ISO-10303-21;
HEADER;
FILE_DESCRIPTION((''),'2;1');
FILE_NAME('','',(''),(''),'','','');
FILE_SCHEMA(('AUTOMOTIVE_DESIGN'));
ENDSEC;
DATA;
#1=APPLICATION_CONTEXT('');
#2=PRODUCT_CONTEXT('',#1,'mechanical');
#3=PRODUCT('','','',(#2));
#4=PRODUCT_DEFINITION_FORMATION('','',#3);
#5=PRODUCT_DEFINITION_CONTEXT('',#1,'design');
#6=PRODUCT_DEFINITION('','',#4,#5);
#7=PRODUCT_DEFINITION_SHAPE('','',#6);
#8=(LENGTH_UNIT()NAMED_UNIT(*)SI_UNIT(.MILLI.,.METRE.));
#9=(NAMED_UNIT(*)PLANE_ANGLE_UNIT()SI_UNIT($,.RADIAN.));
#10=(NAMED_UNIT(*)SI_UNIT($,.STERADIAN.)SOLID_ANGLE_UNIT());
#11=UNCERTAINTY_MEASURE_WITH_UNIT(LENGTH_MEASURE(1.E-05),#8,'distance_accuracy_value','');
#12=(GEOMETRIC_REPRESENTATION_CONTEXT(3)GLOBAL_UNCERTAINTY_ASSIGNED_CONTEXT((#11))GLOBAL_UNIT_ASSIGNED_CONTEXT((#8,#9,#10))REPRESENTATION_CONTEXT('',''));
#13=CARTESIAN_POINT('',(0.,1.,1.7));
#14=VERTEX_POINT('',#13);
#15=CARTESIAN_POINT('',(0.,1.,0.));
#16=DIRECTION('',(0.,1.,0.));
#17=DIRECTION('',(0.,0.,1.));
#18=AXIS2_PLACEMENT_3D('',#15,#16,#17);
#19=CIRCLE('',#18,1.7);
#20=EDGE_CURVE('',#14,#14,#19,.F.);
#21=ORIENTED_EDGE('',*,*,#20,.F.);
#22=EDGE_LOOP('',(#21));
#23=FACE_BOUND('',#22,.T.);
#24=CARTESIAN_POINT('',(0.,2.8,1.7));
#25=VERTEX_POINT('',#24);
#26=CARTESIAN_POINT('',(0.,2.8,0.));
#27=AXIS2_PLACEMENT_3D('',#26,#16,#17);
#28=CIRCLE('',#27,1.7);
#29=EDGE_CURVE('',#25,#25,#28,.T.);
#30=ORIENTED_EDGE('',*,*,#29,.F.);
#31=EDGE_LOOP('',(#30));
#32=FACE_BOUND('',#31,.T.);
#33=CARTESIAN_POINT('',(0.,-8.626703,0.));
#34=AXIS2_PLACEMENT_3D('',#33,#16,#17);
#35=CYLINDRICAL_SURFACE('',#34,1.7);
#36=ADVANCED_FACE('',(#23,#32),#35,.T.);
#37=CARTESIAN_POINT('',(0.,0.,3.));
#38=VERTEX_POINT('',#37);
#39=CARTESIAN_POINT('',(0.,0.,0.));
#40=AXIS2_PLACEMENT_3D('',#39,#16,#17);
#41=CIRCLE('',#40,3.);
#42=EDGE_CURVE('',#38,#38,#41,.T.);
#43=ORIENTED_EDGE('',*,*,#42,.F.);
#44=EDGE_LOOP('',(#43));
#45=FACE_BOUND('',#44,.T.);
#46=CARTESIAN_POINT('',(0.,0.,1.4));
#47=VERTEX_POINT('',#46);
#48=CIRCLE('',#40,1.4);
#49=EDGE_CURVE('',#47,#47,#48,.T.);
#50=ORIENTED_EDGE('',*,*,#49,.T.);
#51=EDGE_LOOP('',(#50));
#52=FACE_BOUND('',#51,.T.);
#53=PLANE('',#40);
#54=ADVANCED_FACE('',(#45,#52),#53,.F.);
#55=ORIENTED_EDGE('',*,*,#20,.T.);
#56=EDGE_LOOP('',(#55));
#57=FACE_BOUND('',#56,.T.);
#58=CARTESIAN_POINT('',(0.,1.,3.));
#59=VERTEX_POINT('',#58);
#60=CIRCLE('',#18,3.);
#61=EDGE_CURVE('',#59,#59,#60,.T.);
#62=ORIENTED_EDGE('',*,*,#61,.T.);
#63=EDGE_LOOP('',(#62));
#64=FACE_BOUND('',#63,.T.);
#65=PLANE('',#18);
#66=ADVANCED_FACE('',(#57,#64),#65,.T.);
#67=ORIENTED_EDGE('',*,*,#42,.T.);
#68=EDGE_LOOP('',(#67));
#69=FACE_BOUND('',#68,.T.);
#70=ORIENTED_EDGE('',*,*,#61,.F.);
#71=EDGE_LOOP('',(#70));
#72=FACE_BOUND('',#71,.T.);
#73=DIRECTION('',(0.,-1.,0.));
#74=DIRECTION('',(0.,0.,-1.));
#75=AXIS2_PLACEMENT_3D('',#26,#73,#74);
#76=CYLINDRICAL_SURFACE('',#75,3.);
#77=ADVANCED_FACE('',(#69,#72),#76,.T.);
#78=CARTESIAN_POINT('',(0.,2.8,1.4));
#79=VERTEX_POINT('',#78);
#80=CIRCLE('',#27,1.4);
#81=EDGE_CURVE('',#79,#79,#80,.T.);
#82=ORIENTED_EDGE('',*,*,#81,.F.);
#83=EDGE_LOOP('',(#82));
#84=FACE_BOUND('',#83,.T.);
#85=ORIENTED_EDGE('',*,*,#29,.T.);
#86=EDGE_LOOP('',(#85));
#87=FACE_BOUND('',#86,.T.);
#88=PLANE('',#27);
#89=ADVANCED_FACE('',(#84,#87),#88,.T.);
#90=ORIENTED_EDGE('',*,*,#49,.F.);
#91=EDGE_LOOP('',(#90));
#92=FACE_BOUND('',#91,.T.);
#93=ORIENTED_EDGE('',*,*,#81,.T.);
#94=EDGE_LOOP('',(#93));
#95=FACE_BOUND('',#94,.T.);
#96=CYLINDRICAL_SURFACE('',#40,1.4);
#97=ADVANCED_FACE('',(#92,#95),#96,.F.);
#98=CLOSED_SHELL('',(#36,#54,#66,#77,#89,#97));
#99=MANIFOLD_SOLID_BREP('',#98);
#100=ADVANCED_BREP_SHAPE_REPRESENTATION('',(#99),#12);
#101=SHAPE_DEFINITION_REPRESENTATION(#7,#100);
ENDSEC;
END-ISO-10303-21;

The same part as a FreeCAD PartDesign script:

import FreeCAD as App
import Part
import Sketcher
Q = App.Units.Quantity


def add_polygon(sketch, points):
    """Adds a closed chain of lines whose ends are joined by coincident constraints."""
    first, n = sketch.GeometryCount, len(points)
    for a, b in zip(points, points[1:] + points[:1]):
        sketch.addGeometry(Part.LineSegment(App.Vector(*a, 0), App.Vector(*b, 0)), False)
    for i in range(n):
        sketch.addConstraint(Sketcher.Constraint("Coincident", first + i, 2, first + (i + 1) % n, 1))

doc = App.newDocument("Part")
body = doc.addObject("PartDesign::Body", "Body")

# Sketch on XZ plane
sketch1 = body.newObject("Sketcher::SketchObject", "Sketch")
sketch1.AttachmentSupport = (doc.getObject("XZ_Plane"), [""])
sketch1.MapMode = "FlatFace"
sketch1.addGeometry(Part.Circle(App.Vector(0, 0, 0), App.Vector(0, 0, 1), 3), False)
sketch1.addConstraint(Sketcher.Constraint("Coincident", 0, 3, -1, 1))
sketch1.addConstraint(Sketcher.Constraint("Diameter", 0, Q("6 mm")))
pad1 = body.newObject("PartDesign::Pad", "Pad")
pad1.Profile = sketch1
pad1.Length = 2.8
pad1.Reversed = True

# Sketch on XZ plane
sketch2 = body.newObject("Sketcher::SketchObject", "Sketch001")
sketch2.AttachmentSupport = (doc.getObject("XZ_Plane"), [""])
sketch2.MapMode = "FlatFace"
sketch2.AttachmentOffset = App.Placement(App.Vector(0, 0, -2.8), App.Rotation())
sketch2.addGeometry(Part.Circle(App.Vector(0, 0, 0), App.Vector(0, 0, 1), 1.4), False)
sketch2.addConstraint(Sketcher.Constraint("Coincident", 0, 3, -1, 1))
sketch2.addConstraint(Sketcher.Constraint("Diameter", 0, Q("2.8 mm")))
pocket1 = body.newObject("PartDesign::Pocket", "Pocket")
pocket1.Profile = sketch2
pocket1.Type = "ThroughAll"
pocket1.Reversed = True

# Sketch on XZ plane
sketch3 = body.newObject("Sketcher::SketchObject", "Sketch002")
sketch3.AttachmentSupport = (doc.getObject("XZ_Plane"), [""])
sketch3.MapMode = "FlatFace"
sketch3.AttachmentOffset = App.Placement(App.Vector(0, 0, -2.8), App.Rotation())
add_polygon(sketch3, [(-4.9, -4.9), (-4.9, 4.9), (4.9, 4.9), (4.9, -4.9)])  # lines 0-3
sketch3.addGeometry(Part.Circle(App.Vector(0, 0, 0), App.Vector(0, 0, 1), 1.7), False)  # 4
sketch3.addConstraint(Sketcher.Constraint("Vertical", 0))
sketch3.addConstraint(Sketcher.Constraint("Horizontal", 1))
sketch3.addConstraint(Sketcher.Constraint("Vertical", 2))
sketch3.addConstraint(Sketcher.Constraint("Horizontal", 3))
sketch3.addConstraint(Sketcher.Constraint("Coincident", 4, 3, -1, 1))
sketch3.addConstraint(Sketcher.Constraint("Symmetric", 0, 2, 2, 2, -1, 1))
sketch3.addConstraint(Sketcher.Constraint("Equal", 3, 0))
sketch3.addConstraint(Sketcher.Constraint("Diameter", 4, Q("3.4 mm")))
sketch3.addConstraint(Sketcher.Constraint("DistanceX", 1, 1, 1, 2, Q("9.788 mm")))
pocket2 = body.newObject("PartDesign::Pocket", "Pocket001")
pocket2.Profile = sketch3
pocket2.Length = 1.8
pocket2.Reversed = True

doc.recompute()
